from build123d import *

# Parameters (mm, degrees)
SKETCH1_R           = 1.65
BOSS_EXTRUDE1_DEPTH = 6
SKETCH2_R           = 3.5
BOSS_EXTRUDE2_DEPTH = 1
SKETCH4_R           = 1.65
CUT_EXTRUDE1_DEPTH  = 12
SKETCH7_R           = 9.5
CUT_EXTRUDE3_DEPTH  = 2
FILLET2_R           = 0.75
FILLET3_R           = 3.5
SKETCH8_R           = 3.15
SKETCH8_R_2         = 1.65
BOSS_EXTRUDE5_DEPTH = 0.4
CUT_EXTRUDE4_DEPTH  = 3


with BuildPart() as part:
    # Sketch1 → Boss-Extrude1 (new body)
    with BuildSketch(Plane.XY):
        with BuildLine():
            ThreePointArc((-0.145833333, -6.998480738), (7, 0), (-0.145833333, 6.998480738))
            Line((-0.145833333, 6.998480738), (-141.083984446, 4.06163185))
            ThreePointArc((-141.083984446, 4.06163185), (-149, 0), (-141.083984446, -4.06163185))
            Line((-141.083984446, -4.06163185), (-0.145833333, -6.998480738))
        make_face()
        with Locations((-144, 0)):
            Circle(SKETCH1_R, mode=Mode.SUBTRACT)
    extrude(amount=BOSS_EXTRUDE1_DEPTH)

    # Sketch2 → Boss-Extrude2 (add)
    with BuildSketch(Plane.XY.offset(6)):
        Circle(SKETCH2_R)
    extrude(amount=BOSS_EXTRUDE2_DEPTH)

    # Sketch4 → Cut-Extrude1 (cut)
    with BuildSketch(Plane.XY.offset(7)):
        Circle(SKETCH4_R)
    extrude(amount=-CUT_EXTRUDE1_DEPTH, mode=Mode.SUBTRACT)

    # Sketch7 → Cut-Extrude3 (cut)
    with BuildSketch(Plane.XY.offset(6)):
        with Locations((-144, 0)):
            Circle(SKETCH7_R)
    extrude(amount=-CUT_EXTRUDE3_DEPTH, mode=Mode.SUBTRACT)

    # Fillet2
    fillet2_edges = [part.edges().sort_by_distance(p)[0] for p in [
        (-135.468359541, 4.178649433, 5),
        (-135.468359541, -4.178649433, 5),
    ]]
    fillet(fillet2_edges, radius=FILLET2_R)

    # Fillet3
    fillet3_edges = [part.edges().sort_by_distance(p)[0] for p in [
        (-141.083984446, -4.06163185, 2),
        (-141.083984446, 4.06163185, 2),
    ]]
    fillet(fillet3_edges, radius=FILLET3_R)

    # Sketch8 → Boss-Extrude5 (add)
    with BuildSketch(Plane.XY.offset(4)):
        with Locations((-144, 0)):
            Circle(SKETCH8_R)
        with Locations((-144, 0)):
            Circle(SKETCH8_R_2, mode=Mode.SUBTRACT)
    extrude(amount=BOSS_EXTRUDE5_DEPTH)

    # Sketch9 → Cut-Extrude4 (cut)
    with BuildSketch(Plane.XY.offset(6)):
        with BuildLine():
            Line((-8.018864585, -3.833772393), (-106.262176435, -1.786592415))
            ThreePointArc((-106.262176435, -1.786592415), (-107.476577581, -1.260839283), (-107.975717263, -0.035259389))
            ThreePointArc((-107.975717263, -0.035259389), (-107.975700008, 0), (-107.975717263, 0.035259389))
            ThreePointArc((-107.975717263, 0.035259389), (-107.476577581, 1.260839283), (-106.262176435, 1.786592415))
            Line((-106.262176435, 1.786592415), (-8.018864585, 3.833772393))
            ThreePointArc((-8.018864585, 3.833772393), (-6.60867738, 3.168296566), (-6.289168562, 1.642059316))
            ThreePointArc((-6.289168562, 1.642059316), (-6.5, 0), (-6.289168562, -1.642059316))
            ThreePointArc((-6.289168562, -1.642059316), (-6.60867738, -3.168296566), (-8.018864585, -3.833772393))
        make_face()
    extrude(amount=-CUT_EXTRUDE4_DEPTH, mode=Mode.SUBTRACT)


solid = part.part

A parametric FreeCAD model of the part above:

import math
import FreeCAD as App
import Part
import Sketcher

V = App.Vector
Q = App.Units.Quantity


def edges_at(feature, points):
    """Names of the edges that pass closest to the given points."""
    edges = feature.Shape.Edges
    near = lambda p: min(range(len(edges)), key=lambda i: edges[i].distToShape(Part.Vertex(*p))[0])
    return sorted({f"Edge{near(p) + 1}" for p in points})

doc = App.newDocument("Part")
body = doc.addObject("PartDesign::Body", "Body")

# Sketch on XY plane
sketch1 = doc.addObject("Sketcher::SketchObject", "Sketch")
body.addObject(sketch1)
sketch1.AttachmentSupport = (doc.XY_Plane, [""])
sketch1.MapMode = "FlatFace"
sketch1.addGeometry(Part.ArcOfCircle(Part.Circle(V(0, 0, 0), V(0, 0, 1), 7), math.radians(-91), math.radians(91)), False)
sketch1.addGeometry(Part.LineSegment(V(-0.1, 7, 0), V(-141.1, 4.1, 0)), False)
sketch1.addGeometry(Part.ArcOfCircle(Part.Circle(V(-144, 0, 0), V(0, 0, 1), 5), math.radians(54), math.radians(306)), False)
sketch1.addGeometry(Part.LineSegment(V(-141.1, -4.1, 0), V(-0.1, -7, 0)), False)
sketch1.addGeometry(Part.Circle(V(-144, 0, 0), V(0, 0, 1), 1.6), False)
sketch1.addConstraint(Sketcher.Constraint("Tangent", 0, 2, 1, 1))
sketch1.addConstraint(Sketcher.Constraint("Coincident", 1, 2, 2, 1))
sketch1.addConstraint(Sketcher.Constraint("Coincident", 2, 2, 3, 1))
sketch1.addConstraint(Sketcher.Constraint("Tangent", 3, 2, 0, 1))
sketch1.addConstraint(Sketcher.Constraint("Coincident", 0, 3, -1, 1))
sketch1.addConstraint(Sketcher.Constraint("Coincident", 4, 3, 2, 3))
sketch1.addConstraint(Sketcher.Constraint("Symmetric", 1, 2, 2, 2, -1))
sketch1.addConstraint(Sketcher.Constraint("Radius", 0, Q("7 mm")))
sketch1.addConstraint(Sketcher.Constraint("Radius", 2, Q("5 mm")))
sketch1.addConstraint(Sketcher.Constraint("Diameter", 4, Q("3.3 mm")))
sketch1.addConstraint(Sketcher.Constraint("DistanceX", 2, 3, -1, 1, Q("144 mm")))
sketch1.addConstraint(Sketcher.Constraint("DistanceY", -1, 1, 1, 2, Q("4.061632 mm")))
pad1 = doc.addObject("PartDesign::Pad", "Pad")
body.addObject(pad1)
pad1.Profile = sketch1
pad1.Length = 6

# Sketch on XY plane
sketch2 = doc.addObject("Sketcher::SketchObject", "Sketch001")
body.addObject(sketch2)
sketch2.AttachmentSupport = (doc.XY_Plane, [""])
sketch2.MapMode = "FlatFace"
sketch2.AttachmentOffset = App.Placement(V(0, 0, 6), App.Rotation())
sketch2.addGeometry(Part.Circle(V(0, 0, 0), V(0, 0, 1), 3.5), False)
sketch2.addConstraint(Sketcher.Constraint("Coincident", 0, 3, -1, 1))
sketch2.addConstraint(Sketcher.Constraint("Diameter", 0, Q("7 mm")))
pad2 = doc.addObject("PartDesign::Pad", "Pad001")
body.addObject(pad2)
pad2.Profile = sketch2
pad2.Length = 1

# Sketch on XY plane
sketch3 = doc.addObject("Sketcher::SketchObject", "Sketch002")
body.addObject(sketch3)
sketch3.AttachmentSupport = (doc.XY_Plane, [""])
sketch3.MapMode = "FlatFace"
sketch3.AttachmentOffset = App.Placement(V(0, 0, 7), App.Rotation())
sketch3.addGeometry(Part.Circle(V(0, 0, 0), V(0, 0, 1), 1.6), False)
sketch3.addConstraint(Sketcher.Constraint("Coincident", 0, 3, -1, 1))
sketch3.addConstraint(Sketcher.Constraint("Diameter", 0, Q("3.3 mm")))
pocket1 = doc.addObject("PartDesign::Pocket", "Pocket")
body.addObject(pocket1)
pocket1.Profile = sketch3
pocket1.Length = 12

# Sketch on XY plane
sketch4 = doc.addObject("Sketcher::SketchObject", "Sketch003")
body.addObject(sketch4)
sketch4.AttachmentSupport = (doc.XY_Plane, [""])
sketch4.MapMode = "FlatFace"
sketch4.AttachmentOffset = App.Placement(V(0, 0, 6), App.Rotation())
sketch4.addGeometry(Part.Circle(V(-144, 0, 0), V(0, 0, 1), 10), False)
sketch4.addConstraint(Sketcher.Constraint("PointOnObject", 0, 3, -1))
sketch4.addConstraint(Sketcher.Constraint("Diameter", 0, Q("19 mm")))
sketch4.addConstraint(Sketcher.Constraint("DistanceX", 0, 3, -1, 1, Q("144 mm")))
pocket2 = doc.addObject("PartDesign::Pocket", "Pocket001")
body.addObject(pocket2)
pocket2.Profile = sketch4
pocket2.Length = 2
doc.recompute()

fillet = doc.addObject("PartDesign::Fillet", "Fillet")
body.addObject(fillet)
fillet.Base = (pocket2, edges_at(pocket2, [(-135.468, 4.179, 5), (-135.468, -4.179, 5)]))
fillet.Radius = 0.75
doc.recompute()

fillet2 = doc.addObject("PartDesign::Fillet", "Fillet001")
body.addObject(fillet2)
fillet2.Base = (fillet, edges_at(fillet, [(-141.084, -4.062, 2), (-141.084, 4.062, 2)]))
fillet2.Radius = 3.5

# Sketch on XY plane
sketch5 = doc.addObject("Sketcher::SketchObject", "Sketch004")
body.addObject(sketch5)
sketch5.AttachmentSupport = (doc.XY_Plane, [""])
sketch5.MapMode = "FlatFace"
sketch5.AttachmentOffset = App.Placement(V(0, 0, 4), App.Rotation())
sketch5.addGeometry(Part.Circle(V(-144, 0, 0), V(0, 0, 1), 3.1), False)
sketch5.addGeometry(Part.Circle(V(-144, 0, 0), V(0, 0, 1), 1.6), False)
sketch5.addConstraint(Sketcher.Constraint("Coincident", 1, 3, 0, 3))
sketch5.addConstraint(Sketcher.Constraint("PointOnObject", 0, 3, -1))
sketch5.addConstraint(Sketcher.Constraint("Diameter", 0, Q("6.3 mm")))
sketch5.addConstraint(Sketcher.Constraint("Diameter", 1, Q("3.3 mm")))
sketch5.addConstraint(Sketcher.Constraint("DistanceX", 0, 3, -1, 1, Q("144 mm")))
pad3 = doc.addObject("PartDesign::Pad", "Pad002")
body.addObject(pad3)
pad3.Profile = sketch5
pad3.Length = 0.4

# Sketch on XY plane
sketch6 = doc.addObject("Sketcher::SketchObject", "Sketch005")
body.addObject(sketch6)
sketch6.AttachmentSupport = (doc.XY_Plane, [""])
sketch6.MapMode = "FlatFace"
sketch6.AttachmentOffset = App.Placement(V(0, 0, 6), App.Rotation())
sketch6.addGeometry(Part.LineSegment(V(-106.26, -1.79, 0), V(-8.02, -3.83, 0)), False)
sketch6.addGeometry(Part.ArcOfCircle(Part.Circle(V(-7.98, -2.08, 0), V(0, 0, 1), 1.75), math.radians(-91), math.radians(15)), False)
sketch6.addGeometry(Part.ArcOfCircle(Part.Circle(V(0, 0, 0), V(0, 0, 1), 6.5), math.radians(165), math.radians(195)), False)
sketch6.addGeometry(Part.ArcOfCircle(Part.Circle(V(-7.98, 2.08, 0), V(0, 0, 1), 1.75), math.radians(-15), math.radians(91)), False)
sketch6.addGeometry(Part.LineSegment(V(-8.02, 3.83, 0), V(-106.26, 1.79, 0)), False)
sketch6.addGeometry(Part.ArcOfCircle(Part.Circle(V(-106.23, 0.04, 0), V(0, 0, 1), 1.75), math.radians(91), math.radians(180)), False)
sketch6.addGeometry(Part.ArcOfCircle(Part.Circle(V(-144, 0, 0), V(0, 0, 1), 36.03), math.radians(-0.06), math.radians(0.06)), False)
sketch6.addGeometry(Part.ArcOfCircle(Part.Circle(V(-106.23, -0.04, 0), V(0, 0, 1), 1.75), math.radians(180), math.radians(269)), False)
sketch6.addConstraint(Sketcher.Constraint("Tangent", 0, 2, 1, 1))
sketch6.addConstraint(Sketcher.Constraint("Tangent", 1, 2, 2, 2))
sketch6.addConstraint(Sketcher.Constraint("Tangent", 2, 1, 3, 1))
sketch6.addConstraint(Sketcher.Constraint("Tangent", 3, 2, 4, 1))
sketch6.addConstraint(Sketcher.Constraint("Tangent", 4, 2, 5, 1))
sketch6.addConstraint(Sketcher.Constraint("Tangent", 5, 2, 6, 2))
sketch6.addConstraint(Sketcher.Constraint("Tangent", 6, 1, 7, 1))
sketch6.addConstraint(Sketcher.Constraint("Tangent", 7, 2, 0, 1))
sketch6.addConstraint(Sketcher.Constraint("Coincident", 2, 3, -1, 1))
sketch6.addConstraint(Sketcher.Constraint("Equal", 1, 3))
sketch6.addConstraint(Sketcher.Constraint("Equal", 3, 5))
sketch6.addConstraint(Sketcher.Constraint("Equal", 5, 7))
sketch6.addConstraint(Sketcher.Constraint("Symmetric", 0, 2, 3, 2, -1))
sketch6.addConstraint(Sketcher.Constraint("PointOnObject", 6, 3, -1))
sketch6.addConstraint(Sketcher.Constraint("Radius", 2, Q("6.5 mm")))
sketch6.addConstraint(Sketcher.Constraint("Radius", 1, Q("1.75 mm")))
sketch6.addConstraint(Sketcher.Constraint("Radius", 6, Q("36.02506 mm")))
sketch6.addConstraint(Sketcher.Constraint("DistanceY", 0, 2, 7, 3, Q("3.7968 mm")))
sketch6.addConstraint(Sketcher.Constraint("Distance", 0, Q("98.264639 mm")))
sketch6.addConstraint(Sketcher.Constraint("DistanceX", 5, 3, -1, 1, Q("106.225718 mm")))
pocket3 = doc.addObject("PartDesign::Pocket", "Pocket002")
body.addObject(pocket3)
pocket3.Profile = sketch6
pocket3.Length = 3

doc.recompute()
